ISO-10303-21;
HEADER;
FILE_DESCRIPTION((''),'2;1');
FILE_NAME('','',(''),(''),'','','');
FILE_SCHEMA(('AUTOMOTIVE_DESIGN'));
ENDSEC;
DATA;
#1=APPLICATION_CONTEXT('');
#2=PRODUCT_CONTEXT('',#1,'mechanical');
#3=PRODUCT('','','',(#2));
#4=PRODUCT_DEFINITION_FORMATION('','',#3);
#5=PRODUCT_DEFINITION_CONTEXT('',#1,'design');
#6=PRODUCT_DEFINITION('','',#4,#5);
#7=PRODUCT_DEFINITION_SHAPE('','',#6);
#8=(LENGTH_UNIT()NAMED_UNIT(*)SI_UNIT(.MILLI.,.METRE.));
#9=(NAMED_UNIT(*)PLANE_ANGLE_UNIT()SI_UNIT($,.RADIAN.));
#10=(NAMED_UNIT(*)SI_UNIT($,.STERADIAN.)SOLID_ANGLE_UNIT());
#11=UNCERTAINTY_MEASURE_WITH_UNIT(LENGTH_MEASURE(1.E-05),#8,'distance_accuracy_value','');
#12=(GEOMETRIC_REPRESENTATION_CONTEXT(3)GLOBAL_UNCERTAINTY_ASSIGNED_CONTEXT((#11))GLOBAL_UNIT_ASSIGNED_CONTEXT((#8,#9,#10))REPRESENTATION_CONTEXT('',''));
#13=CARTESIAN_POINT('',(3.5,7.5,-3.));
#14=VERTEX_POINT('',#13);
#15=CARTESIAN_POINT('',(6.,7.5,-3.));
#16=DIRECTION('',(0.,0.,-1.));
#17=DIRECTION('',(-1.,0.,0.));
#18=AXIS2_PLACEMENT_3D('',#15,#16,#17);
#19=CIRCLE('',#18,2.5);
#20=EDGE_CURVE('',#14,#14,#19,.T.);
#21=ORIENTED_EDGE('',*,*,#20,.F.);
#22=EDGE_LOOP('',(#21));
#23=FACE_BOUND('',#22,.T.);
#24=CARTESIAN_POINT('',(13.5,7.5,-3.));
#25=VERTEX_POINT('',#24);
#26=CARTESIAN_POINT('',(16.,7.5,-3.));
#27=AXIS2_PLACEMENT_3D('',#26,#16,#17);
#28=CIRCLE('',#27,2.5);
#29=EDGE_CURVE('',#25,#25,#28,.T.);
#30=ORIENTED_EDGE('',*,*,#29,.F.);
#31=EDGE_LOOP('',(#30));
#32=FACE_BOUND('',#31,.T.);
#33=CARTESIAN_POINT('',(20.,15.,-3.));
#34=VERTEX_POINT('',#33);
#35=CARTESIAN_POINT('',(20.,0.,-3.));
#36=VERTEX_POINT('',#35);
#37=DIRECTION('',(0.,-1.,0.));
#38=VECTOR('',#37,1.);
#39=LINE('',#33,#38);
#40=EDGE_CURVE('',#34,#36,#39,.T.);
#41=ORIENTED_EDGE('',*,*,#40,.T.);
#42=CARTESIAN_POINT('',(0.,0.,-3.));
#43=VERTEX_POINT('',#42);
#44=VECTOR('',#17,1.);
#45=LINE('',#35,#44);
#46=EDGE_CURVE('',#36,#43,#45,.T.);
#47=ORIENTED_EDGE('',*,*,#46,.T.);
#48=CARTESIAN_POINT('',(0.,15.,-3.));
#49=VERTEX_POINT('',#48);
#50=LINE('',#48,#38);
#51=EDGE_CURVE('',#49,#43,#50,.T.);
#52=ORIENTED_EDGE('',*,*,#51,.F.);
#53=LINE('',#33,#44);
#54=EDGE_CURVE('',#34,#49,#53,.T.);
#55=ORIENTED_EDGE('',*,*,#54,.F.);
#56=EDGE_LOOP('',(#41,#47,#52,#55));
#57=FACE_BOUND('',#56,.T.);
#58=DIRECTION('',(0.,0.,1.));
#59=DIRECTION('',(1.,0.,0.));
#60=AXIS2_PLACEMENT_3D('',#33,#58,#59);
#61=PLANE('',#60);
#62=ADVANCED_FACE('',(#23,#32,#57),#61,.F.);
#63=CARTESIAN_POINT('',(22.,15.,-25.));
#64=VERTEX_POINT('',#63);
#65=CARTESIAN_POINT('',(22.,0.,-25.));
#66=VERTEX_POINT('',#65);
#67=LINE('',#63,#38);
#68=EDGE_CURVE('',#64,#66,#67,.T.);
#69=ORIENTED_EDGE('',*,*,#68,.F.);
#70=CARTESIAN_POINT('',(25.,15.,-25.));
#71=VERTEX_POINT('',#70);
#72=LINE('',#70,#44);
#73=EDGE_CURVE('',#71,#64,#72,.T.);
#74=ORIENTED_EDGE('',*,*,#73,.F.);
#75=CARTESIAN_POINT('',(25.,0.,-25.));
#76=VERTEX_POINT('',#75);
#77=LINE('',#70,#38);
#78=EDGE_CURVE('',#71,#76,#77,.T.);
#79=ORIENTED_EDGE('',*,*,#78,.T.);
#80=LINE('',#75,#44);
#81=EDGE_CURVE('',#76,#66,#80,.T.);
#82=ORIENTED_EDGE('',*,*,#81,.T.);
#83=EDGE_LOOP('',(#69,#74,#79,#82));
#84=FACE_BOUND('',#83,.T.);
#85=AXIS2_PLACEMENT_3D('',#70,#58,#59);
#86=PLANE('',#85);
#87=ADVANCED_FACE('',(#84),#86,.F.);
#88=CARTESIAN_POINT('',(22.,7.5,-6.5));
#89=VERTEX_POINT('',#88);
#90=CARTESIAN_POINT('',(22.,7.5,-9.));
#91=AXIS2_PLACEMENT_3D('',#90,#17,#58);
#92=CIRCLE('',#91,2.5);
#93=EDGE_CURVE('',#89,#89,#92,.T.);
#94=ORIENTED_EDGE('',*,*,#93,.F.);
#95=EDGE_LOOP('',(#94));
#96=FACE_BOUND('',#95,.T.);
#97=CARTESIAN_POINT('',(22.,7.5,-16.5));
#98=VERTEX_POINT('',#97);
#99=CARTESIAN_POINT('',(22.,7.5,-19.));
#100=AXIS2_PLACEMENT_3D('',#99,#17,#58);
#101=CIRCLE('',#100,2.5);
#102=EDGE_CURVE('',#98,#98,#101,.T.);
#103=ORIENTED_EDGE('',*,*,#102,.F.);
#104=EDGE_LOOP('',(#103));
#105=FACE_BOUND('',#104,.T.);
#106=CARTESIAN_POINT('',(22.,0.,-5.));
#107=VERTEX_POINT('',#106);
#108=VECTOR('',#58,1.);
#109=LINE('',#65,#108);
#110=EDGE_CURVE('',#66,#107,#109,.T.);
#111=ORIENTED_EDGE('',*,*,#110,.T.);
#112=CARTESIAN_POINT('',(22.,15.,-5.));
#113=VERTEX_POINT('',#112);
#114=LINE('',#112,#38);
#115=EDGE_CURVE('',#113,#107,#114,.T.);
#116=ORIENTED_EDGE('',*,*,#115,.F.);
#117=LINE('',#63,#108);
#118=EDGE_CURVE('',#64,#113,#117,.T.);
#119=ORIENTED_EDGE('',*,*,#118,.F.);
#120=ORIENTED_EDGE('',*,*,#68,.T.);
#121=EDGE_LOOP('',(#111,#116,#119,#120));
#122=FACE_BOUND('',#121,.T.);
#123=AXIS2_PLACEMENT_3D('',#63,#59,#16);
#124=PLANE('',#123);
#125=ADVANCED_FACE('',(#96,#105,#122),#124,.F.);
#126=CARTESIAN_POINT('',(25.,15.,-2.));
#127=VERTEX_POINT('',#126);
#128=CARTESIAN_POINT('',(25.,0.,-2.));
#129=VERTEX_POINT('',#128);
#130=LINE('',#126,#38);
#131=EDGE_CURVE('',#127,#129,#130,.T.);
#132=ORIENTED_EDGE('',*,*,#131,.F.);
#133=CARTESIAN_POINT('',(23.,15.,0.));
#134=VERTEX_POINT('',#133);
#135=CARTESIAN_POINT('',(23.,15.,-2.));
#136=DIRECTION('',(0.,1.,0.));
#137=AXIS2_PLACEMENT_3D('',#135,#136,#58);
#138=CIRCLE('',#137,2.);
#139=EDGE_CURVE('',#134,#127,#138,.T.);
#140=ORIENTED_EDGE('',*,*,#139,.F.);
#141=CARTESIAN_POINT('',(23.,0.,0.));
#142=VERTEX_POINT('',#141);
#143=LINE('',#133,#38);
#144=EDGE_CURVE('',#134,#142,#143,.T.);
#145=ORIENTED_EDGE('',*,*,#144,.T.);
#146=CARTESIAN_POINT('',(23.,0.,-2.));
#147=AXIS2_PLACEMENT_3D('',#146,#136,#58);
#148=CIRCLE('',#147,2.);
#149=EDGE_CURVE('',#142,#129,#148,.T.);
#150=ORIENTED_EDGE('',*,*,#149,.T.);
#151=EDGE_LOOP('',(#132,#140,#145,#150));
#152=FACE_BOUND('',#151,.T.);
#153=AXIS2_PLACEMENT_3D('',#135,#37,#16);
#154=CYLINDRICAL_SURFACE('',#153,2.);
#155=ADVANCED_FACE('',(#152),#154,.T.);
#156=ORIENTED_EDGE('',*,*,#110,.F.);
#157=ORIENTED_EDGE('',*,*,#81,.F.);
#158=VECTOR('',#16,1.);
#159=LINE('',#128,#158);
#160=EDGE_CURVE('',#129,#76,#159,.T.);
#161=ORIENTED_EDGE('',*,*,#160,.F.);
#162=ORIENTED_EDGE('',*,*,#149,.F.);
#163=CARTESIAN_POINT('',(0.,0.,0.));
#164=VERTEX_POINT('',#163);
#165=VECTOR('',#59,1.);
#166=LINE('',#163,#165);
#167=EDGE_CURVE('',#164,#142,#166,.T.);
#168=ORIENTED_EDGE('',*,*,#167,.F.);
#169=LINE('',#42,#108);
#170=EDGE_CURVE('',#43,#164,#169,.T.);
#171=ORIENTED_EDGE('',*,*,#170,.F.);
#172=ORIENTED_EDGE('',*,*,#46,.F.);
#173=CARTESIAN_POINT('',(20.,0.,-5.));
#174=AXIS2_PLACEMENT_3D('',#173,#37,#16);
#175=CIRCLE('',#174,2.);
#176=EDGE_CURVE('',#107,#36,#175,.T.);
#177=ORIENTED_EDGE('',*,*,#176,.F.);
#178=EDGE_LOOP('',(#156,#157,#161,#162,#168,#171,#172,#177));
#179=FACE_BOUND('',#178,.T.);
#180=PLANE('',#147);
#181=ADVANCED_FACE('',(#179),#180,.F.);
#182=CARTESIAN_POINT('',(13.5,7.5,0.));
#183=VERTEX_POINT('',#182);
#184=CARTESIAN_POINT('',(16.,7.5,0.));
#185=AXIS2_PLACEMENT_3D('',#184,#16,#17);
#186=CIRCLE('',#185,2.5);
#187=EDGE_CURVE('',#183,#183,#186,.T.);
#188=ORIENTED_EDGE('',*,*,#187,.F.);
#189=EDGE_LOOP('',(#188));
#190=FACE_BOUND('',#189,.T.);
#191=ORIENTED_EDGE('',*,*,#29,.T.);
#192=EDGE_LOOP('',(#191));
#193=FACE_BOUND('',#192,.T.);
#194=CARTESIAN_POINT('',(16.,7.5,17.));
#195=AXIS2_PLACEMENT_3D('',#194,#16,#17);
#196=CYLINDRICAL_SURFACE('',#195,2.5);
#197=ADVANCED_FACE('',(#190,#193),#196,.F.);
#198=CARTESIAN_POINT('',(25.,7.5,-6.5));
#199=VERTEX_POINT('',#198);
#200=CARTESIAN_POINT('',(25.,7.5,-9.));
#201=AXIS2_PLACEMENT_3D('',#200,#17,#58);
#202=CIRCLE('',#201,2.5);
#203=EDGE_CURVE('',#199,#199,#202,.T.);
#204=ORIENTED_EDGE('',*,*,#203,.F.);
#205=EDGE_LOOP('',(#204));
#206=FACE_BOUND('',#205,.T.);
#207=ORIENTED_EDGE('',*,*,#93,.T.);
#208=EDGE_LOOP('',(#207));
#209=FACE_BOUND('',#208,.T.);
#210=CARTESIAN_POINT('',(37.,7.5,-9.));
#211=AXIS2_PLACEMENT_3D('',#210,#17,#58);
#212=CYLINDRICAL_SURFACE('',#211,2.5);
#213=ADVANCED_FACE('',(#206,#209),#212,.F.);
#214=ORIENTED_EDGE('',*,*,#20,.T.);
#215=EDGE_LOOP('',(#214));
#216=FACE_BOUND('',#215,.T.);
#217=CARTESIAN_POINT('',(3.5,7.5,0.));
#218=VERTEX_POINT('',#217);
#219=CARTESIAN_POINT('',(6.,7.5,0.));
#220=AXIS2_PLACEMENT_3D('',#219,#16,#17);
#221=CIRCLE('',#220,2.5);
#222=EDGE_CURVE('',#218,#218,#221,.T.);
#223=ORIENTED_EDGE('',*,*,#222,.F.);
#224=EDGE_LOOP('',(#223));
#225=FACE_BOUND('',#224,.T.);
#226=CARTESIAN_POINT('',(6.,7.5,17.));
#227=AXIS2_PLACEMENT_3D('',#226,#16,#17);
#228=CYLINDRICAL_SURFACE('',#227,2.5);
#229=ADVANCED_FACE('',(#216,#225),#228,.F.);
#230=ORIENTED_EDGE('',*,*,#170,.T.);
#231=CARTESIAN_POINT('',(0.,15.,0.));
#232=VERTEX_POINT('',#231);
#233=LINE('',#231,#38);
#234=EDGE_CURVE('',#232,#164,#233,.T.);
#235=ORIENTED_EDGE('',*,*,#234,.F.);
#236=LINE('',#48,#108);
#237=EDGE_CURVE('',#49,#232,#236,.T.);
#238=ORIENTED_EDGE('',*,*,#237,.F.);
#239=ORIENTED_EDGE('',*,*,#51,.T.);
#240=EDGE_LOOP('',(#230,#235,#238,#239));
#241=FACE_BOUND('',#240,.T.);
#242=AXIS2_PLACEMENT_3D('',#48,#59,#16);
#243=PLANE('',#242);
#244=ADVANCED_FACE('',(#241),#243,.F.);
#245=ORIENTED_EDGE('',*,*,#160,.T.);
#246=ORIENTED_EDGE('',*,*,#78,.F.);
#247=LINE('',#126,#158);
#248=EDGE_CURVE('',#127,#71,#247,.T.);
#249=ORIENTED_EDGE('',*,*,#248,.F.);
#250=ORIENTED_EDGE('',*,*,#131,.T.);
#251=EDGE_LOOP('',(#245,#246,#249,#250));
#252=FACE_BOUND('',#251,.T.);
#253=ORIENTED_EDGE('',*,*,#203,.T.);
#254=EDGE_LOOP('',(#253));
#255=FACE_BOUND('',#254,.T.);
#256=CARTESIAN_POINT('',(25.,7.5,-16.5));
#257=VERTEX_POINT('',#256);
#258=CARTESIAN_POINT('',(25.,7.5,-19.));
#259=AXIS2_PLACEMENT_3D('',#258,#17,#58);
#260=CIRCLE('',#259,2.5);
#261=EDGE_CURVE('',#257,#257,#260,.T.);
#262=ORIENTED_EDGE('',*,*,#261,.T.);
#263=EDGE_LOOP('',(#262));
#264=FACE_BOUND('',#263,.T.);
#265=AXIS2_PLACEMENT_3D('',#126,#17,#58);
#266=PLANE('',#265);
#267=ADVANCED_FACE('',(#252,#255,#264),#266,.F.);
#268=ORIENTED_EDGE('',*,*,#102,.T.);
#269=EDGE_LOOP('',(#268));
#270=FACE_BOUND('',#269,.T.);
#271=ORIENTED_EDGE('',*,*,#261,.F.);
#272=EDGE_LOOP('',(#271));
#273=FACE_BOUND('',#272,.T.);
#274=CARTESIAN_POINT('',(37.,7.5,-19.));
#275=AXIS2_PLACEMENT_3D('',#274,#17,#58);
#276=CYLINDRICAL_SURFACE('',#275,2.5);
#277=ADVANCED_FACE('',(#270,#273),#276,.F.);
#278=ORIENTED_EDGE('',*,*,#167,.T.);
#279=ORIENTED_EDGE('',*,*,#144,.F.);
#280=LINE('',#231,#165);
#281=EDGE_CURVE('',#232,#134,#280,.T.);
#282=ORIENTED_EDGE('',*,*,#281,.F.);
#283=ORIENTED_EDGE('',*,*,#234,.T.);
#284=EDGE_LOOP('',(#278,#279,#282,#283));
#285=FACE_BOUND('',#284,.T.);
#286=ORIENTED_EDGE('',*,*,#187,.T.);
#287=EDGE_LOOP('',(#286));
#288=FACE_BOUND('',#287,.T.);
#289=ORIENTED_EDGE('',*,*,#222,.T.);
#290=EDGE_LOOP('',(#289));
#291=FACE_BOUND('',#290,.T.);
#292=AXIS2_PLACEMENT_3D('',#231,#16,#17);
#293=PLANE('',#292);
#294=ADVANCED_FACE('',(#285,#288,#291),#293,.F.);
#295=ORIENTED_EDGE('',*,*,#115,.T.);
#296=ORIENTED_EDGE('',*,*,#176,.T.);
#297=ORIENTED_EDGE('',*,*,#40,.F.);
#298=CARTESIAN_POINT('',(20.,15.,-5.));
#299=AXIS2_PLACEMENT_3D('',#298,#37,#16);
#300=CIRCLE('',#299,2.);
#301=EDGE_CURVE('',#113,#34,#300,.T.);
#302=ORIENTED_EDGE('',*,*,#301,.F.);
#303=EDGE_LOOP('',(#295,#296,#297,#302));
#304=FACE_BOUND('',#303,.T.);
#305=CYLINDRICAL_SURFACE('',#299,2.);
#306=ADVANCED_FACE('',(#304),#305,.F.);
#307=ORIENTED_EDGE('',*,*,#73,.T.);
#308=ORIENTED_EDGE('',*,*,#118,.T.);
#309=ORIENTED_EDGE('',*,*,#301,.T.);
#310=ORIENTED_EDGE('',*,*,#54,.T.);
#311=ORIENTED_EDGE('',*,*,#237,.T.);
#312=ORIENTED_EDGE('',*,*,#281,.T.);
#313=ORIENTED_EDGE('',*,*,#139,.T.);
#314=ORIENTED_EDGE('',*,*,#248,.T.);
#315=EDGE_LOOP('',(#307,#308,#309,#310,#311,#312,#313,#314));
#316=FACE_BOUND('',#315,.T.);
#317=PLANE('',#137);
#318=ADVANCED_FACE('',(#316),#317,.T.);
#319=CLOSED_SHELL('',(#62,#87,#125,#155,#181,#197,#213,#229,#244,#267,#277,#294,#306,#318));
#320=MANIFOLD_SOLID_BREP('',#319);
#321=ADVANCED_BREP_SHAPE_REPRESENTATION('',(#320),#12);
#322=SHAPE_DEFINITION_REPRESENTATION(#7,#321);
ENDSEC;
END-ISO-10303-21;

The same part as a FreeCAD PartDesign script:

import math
import FreeCAD as App
import Part
import Sketcher
from FreeCAD import Vector
Q = App.Units.Quantity

doc = App.newDocument("Part")
params = doc.addObject("Spreadsheet::Sheet", "Params")
for row, (alias, value) in enumerate([
    ("sketch1_radius", "2 mm"),
    ("sketch1_width", "23 mm"),
    ("sketch1_width2", "3 mm"),
    ("pad1_length", "15 mm"),
    ("sketch2_diameter", "5 mm"),
    ("pocket1_length", "20 mm"),
    ("sketch3_diameter", "5 mm"),
    ("pocket2_length", "15 mm"),
], start=1):
    params.set(f"A{row}", alias)
    params.set(f"B{row}", "=" + value)
    params.setAlias(f"B{row}", alias)

body = doc.addObject("PartDesign::Body", "Body")

sketch1 = body.newObject("Sketcher::SketchObject", "Sketch")
sketch1.AttachmentSupport = (doc.getObject("XZ_Plane"), [""])
sketch1.MapMode = "FlatFace"
sketch1.addGeometry([
    Part.LineSegment(Vector(0, 0, 0), Vector(23, 0, 0)),
    Part.ArcOfCircle(Part.Circle(Vector(23, -2, 0), Vector(0, 0, 1), 2), math.radians(0), math.radians(90)),
    Part.LineSegment(Vector(25, -2, 0), Vector(25, -25, 0)),
    Part.LineSegment(Vector(25, -25, 0), Vector(22, -25, 0)),
    Part.LineSegment(Vector(22, -25, 0), Vector(22, -5, 0)),
    Part.ArcOfCircle(Part.Circle(Vector(20, -5, 0), Vector(0, 0, 1), 2), math.radians(0), math.radians(90)),
    Part.LineSegment(Vector(20, -3, 0), Vector(0, -3, 0)),
    Part.LineSegment(Vector(0, -3, 0), Vector(0, 0, 0)),
], False)
sketch1.addConstraint([
    Sketcher.Constraint("Tangent", 0, 2, 1, 2),
    Sketcher.Constraint("Tangent", 1, 1, 2, 1),
    Sketcher.Constraint("Coincident", 2, 2, 3, 1),
    Sketcher.Constraint("Coincident", 3, 2, 4, 1),
    Sketcher.Constraint("Tangent", 4, 2, 5, 1),
    Sketcher.Constraint("Tangent", 5, 2, 6, 1),
    Sketcher.Constraint("Coincident", 6, 2, 7, 1),
    Sketcher.Constraint("Coincident", 7, 2, 0, 1),
    Sketcher.Constraint("Horizontal", 0),
    Sketcher.Constraint("Vertical", 2),
    Sketcher.Constraint("Horizontal", 3),
    Sketcher.Constraint("Vertical", 4),
    Sketcher.Constraint("Horizontal", 6),
    Sketcher.Constraint("Vertical", 7),
    Sketcher.Constraint("Coincident", 7, 2, -1, 1),
    Sketcher.Constraint("Equal", 1, 5),
    Sketcher.Constraint("Equal", 0, 2),
    Sketcher.Constraint("Equal", 6, 4),
    Sketcher.Constraint("Radius", 1, Q("2 mm")),
    Sketcher.Constraint("DistanceX", 0, 1, 0, 2, Q("23 mm")),
    Sketcher.Constraint("DistanceX", 3, 2, 3, 1, Q("3 mm")),
])
sketch1.setExpression("Constraints[18]", "Params.sketch1_radius")
sketch1.setExpression("Constraints[19]", "Params.sketch1_width")
sketch1.setExpression("Constraints[20]", "Params.sketch1_width2")
pad1 = body.newObject("PartDesign::Pad", "Pad")
pad1.Profile = sketch1
pad1.setExpression("Length", "Params.pad1_length")
pad1.Reversed = True

sketch2 = body.newObject("Sketcher::SketchObject", "Sketch001")
sketch2.AttachmentSupport = (doc.getObject("XY_Plane"), [""])
sketch2.MapMode = "FlatFace"
sketch2.AttachmentOffset = App.Placement(Vector(0, 0, -3), App.Rotation())
sketch2.addGeometry([
    Part.Circle(Vector(16, 7.5, 0), Vector(0, 0, 1), 2.5),
    Part.Circle(Vector(6, 7.5, 0), Vector(0, 0, 1), 2.5),
], False)
sketch2.addConstraint([
    Sketcher.Constraint("Equal", 0, 1),
    Sketcher.Constraint("Horizontal", 0, 3, 1, 3),
    Sketcher.Constraint("Diameter", 0, Q("5 mm")),
    Sketcher.Constraint("DistanceX", -1, 1, 0, 3, Q("16 mm")),
    Sketcher.Constraint("DistanceX", -1, 1, 1, 3, Q("6 mm")),
    Sketcher.Constraint("DistanceY", -1, 1, 0, 3, Q("7.5 mm")),
])
sketch2.setExpression("Constraints[2]", "Params.sketch2_diameter")
pocket1 = body.newObject("PartDesign::Pocket", "Pocket")
pocket1.Profile = sketch2
pocket1.setExpression("Length", "Params.pocket1_length")
pocket1.Reversed = True

sketch3 = body.newObject("Sketcher::SketchObject", "Sketch002")
sketch3.AttachmentSupport = (doc.getObject("YZ_Plane"), [""])
sketch3.MapMode = "FlatFace"
sketch3.AttachmentOffset = App.Placement(Vector(0, 0, 22), App.Rotation())
sketch3.addGeometry([
    Part.Circle(Vector(7.5, -9, 0), Vector(0, 0, 1), 2.5),
    Part.Circle(Vector(7.5, -19, 0), Vector(0, 0, 1), 2.5),
], False)
sketch3.addConstraint([
    Sketcher.Constraint("Equal", 0, 1),
    Sketcher.Constraint("Vertical", 0, 3, 1, 3),
    Sketcher.Constraint("Diameter", 0, Q("5 mm")),
    Sketcher.Constraint("DistanceY", 0, 3, -1, 1, Q("9 mm")),
    Sketcher.Constraint("DistanceY", 1, 3, -1, 1, Q("19 mm")),
    Sketcher.Constraint("DistanceX", -1, 1, 0, 3, Q("7.5 mm")),
])
sketch3.setExpression("Constraints[2]", "Params.sketch3_diameter")
pocket2 = body.newObject("PartDesign::Pocket", "Pocket001")
pocket2.Profile = sketch3
pocket2.setExpression("Length", "Params.pocket2_length")
pocket2.Reversed = True

doc.recompute()
